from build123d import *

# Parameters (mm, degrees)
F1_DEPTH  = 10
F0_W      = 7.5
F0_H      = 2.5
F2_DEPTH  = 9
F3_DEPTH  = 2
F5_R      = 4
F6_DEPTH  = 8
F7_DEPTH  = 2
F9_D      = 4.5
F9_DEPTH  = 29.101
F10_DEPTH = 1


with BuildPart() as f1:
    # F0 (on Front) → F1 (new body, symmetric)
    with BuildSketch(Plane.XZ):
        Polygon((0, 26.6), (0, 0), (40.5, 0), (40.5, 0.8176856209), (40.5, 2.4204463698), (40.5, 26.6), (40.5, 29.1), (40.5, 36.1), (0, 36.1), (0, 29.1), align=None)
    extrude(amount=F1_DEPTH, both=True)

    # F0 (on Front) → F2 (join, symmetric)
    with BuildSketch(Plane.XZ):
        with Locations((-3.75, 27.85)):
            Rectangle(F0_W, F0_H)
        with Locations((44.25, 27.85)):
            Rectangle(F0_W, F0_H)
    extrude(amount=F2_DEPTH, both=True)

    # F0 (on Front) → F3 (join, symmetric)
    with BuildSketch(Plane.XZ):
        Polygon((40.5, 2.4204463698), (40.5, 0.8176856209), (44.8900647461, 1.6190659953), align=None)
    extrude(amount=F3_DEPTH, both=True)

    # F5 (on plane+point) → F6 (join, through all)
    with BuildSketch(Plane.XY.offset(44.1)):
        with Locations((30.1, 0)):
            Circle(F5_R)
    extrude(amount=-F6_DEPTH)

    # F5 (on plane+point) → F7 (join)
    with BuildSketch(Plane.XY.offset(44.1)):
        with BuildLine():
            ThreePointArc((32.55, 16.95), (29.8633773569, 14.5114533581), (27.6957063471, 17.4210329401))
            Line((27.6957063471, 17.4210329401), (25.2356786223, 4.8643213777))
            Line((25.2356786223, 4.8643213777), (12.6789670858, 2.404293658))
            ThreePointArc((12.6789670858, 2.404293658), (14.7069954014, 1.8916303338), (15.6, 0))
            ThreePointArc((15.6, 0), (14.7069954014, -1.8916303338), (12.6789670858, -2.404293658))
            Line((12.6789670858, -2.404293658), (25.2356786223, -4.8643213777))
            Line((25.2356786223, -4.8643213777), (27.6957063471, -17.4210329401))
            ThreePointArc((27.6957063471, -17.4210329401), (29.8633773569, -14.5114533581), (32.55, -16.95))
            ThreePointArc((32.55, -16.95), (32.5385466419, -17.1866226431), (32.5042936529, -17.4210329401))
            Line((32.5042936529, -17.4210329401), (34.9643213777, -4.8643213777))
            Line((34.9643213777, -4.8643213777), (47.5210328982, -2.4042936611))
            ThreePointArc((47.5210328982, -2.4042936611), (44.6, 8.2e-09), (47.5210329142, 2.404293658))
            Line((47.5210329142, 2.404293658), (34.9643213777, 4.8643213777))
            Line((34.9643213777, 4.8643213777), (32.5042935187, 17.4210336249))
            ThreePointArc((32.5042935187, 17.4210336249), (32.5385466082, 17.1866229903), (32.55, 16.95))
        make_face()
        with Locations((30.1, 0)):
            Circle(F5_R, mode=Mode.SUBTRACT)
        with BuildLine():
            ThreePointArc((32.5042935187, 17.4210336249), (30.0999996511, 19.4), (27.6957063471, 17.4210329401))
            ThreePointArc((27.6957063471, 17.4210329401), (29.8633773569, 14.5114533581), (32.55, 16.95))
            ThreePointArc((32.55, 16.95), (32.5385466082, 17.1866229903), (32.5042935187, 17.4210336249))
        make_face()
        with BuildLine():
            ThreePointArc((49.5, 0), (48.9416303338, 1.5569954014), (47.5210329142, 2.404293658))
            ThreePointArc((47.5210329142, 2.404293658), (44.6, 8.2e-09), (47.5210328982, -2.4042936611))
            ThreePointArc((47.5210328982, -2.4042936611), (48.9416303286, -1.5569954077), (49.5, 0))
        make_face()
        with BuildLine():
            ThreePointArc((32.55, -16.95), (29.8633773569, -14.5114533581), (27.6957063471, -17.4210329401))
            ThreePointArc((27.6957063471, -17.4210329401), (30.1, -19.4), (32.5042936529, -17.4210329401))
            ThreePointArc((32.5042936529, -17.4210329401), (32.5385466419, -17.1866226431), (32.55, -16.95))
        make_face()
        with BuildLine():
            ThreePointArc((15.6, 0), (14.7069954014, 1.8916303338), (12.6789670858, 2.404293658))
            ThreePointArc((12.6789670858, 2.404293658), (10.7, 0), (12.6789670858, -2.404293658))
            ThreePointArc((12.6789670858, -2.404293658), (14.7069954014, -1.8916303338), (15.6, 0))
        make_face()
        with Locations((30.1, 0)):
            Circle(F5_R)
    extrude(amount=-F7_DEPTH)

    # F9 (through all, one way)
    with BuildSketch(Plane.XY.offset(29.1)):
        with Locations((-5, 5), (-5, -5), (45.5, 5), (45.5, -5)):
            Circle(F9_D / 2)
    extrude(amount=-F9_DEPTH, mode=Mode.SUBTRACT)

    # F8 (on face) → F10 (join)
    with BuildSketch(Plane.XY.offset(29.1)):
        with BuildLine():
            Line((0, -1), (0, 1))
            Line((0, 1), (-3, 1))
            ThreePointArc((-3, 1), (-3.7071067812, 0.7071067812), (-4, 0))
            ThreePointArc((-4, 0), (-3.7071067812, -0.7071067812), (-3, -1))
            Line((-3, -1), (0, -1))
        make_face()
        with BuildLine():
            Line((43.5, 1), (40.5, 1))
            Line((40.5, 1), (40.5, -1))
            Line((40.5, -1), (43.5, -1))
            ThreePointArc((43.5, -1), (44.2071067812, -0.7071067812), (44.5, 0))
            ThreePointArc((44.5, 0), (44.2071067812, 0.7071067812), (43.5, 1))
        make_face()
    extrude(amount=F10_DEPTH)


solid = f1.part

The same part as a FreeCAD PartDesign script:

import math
import FreeCAD as App
import Part
import Sketcher
from FreeCAD import Vector
Q = App.Units.Quantity


def add_polygon(sketch, points):
    """Adds a closed chain of lines whose ends are joined by coincident constraints."""
    first, n = sketch.GeometryCount, len(points)
    for a, b in zip(points, points[1:] + points[:1]):
        sketch.addGeometry(Part.LineSegment(App.Vector(*a, 0), App.Vector(*b, 0)), False)
    for i in range(n):
        sketch.addConstraint(Sketcher.Constraint("Coincident", first + i, 2, first + (i + 1) % n, 1))

doc = App.newDocument("Part")
body = doc.addObject("PartDesign::Body", "Body")

# Sketch on XZ plane
sketch1 = body.newObject("Sketcher::SketchObject", "Sketch")
sketch1.AttachmentSupport = (doc.getObject("XZ_Plane"), [""])
sketch1.MapMode = "FlatFace"
add_polygon(sketch1, [(0, 0), (40, 0), (40, 36), (0, 36)])  # lines 0-3
sketch1.addConstraint([
    Sketcher.Constraint("Horizontal", 0),
    Sketcher.Constraint("Vertical", 1),
    Sketcher.Constraint("Horizontal", 2),
    Sketcher.Constraint("Vertical", 3),
    Sketcher.Constraint("Coincident", 3, 2, -1, 1),
    Sketcher.Constraint("DistanceX", 0, 1, 0, 2, Q("40.5 mm")),
    Sketcher.Constraint("DistanceY", 1, 1, 1, 2, Q("36.1 mm")),
])
pad1 = body.newObject("PartDesign::Pad", "Pad")
pad1.Profile = sketch1
pad1.Length = 20
pad1.Midplane = True

# Sketch on XZ plane
sketch2 = body.newObject("Sketcher::SketchObject", "Sketch001")
sketch2.AttachmentSupport = (doc.getObject("XZ_Plane"), [""])
sketch2.MapMode = "FlatFace"
add_polygon(sketch2, [(-7.5, 29.1), (-7.5, 26.6), (0, 26.6), (0, 29.1)])  # lines 0-3
add_polygon(sketch2, [(40.5, 29.1), (40.5, 26.6), (48, 26.6), (48, 29.1)])  # lines 4-7
sketch2.addConstraint([
    Sketcher.Constraint("Vertical", 0),
    Sketcher.Constraint("Horizontal", 1),
    Sketcher.Constraint("Vertical", 2),
    Sketcher.Constraint("Horizontal", 3),
    Sketcher.Constraint("Vertical", 4),
    Sketcher.Constraint("Horizontal", 5),
    Sketcher.Constraint("Vertical", 6),
    Sketcher.Constraint("Horizontal", 7),
    Sketcher.Constraint("PointOnObject", 1, 2, -2),
    Sketcher.Constraint("Horizontal", 1, 2, 4, 2),
    Sketcher.Constraint("Horizontal", 3, 2, 6, 2),
    Sketcher.Constraint("Equal", 3, 5),
    Sketcher.Constraint("DistanceX", 1, 1, 1, 2, Q("7.5 mm")),
    Sketcher.Constraint("DistanceY", 0, 2, 0, 1, Q("2.5 mm")),
    Sketcher.Constraint("DistanceX", -1, 1, 5, 2, Q("48 mm")),
    Sketcher.Constraint("DistanceY", -1, 1, 0, 2, Q("26.6 mm")),
])
pad2 = body.newObject("PartDesign::Pad", "Pad001")
pad2.Profile = sketch2
pad2.Length = 18
pad2.Midplane = True

# Sketch on XZ plane
sketch3 = body.newObject("Sketcher::SketchObject", "Sketch002")
sketch3.AttachmentSupport = (doc.getObject("XZ_Plane"), [""])
sketch3.MapMode = "FlatFace"
add_polygon(sketch3, [(40.5, 2.4), (40.5, 0.8), (44.9, 1.6)])  # lines 0-2
sketch3.addConstraint([
    Sketcher.Constraint("Vertical", 0),
    Sketcher.Constraint("Equal", 1, 2),
    Sketcher.Constraint("DistanceX", -1, 1, 0, 2, Q("40.5 mm")),
    Sketcher.Constraint("DistanceY", 0, 2, 0, 1, Q("1.602761 mm")),
    Sketcher.Constraint("Distance", 1, Q("4.462609 mm")),
    Sketcher.Constraint("DistanceY", -1, 1, 0, 2, Q("0.817686 mm")),
])
pad3 = body.newObject("PartDesign::Pad", "Pad002")
pad3.Profile = sketch3
pad3.Length = 4
pad3.Midplane = True

# Sketch on XY plane
sketch4 = body.newObject("Sketcher::SketchObject", "Sketch003")
sketch4.AttachmentSupport = (doc.getObject("XY_Plane"), [""])
sketch4.MapMode = "FlatFace"
sketch4.AttachmentOffset = App.Placement(Vector(0, 0, 44.1), App.Rotation())
sketch4.addGeometry(Part.Circle(Vector(30.1, 0, 0), Vector(0, 0, 1), 4), False)
sketch4.addConstraint([
    Sketcher.Constraint("PointOnObject", 0, 3, -1),
    Sketcher.Constraint("Diameter", 0, Q("8 mm")),
    Sketcher.Constraint("DistanceX", -1, 1, 0, 3, Q("30.1 mm")),
])
pad4 = body.newObject("PartDesign::Pad", "Pad003")
pad4.Profile = sketch4
pad4.Type = "UpToLast"
pad4.Reversed = True

# Sketch on XY plane
sketch5 = body.newObject("Sketcher::SketchObject", "Sketch004")
sketch5.AttachmentSupport = (doc.getObject("XY_Plane"), [""])
sketch5.MapMode = "FlatFace"
sketch5.AttachmentOffset = App.Placement(Vector(0, 0, 44.1), App.Rotation())
sketch5.addGeometry([
    Part.LineSegment(Vector(27.7, 17.4, 0), Vector(25.2, 4.9, 0)),  # 0
    Part.LineSegment(Vector(25.2, 4.9, 0), Vector(12.7, 2.4, 0)),  # 1
    Part.ArcOfCircle(Part.Circle(Vector(13.2, 0, 0), Vector(0, 0, 1), 2.5), math.radians(101), math.radians(259)),  # 2
    Part.LineSegment(Vector(12.7, -2.4, 0), Vector(25.2, -4.9, 0)),  # 3
    Part.LineSegment(Vector(25.2, -4.9, 0), Vector(27.7, -17.4, 0)),  # 4
    Part.ArcOfCircle(Part.Circle(Vector(30.1, -16.9, 0), Vector(0, 0, 1), 2.5), math.radians(-169), math.radians(-11)),  # 5
    Part.LineSegment(Vector(32.5, -17.4, 0), Vector(35, -4.9, 0)),  # 6
    Part.LineSegment(Vector(35, -4.9, 0), Vector(47.5, -2.4, 0)),  # 7
    Part.ArcOfCircle(Part.Circle(Vector(47, 0, 0), Vector(0, 0, 1), 2.5), math.radians(-79), math.radians(0)),  # 8
    Part.ArcOfCircle(Part.Circle(Vector(47, 0, 0), Vector(0, 0, 1), 2.5), math.radians(0), math.radians(79)),  # 9
    Part.LineSegment(Vector(47.5, 2.4, 0), Vector(35, 4.9, 0)),  # 10
    Part.LineSegment(Vector(35, 4.9, 0), Vector(32.5, 17.4, 0)),  # 11
    Part.ArcOfCircle(Part.Circle(Vector(30.1, 16.9, 0), Vector(0, 0, 1), 2.5), math.radians(11), math.radians(169)),  # 12
], False)
sketch5.addConstraint([
    Sketcher.Constraint("Coincident", 0, 2, 1, 1),
    Sketcher.Constraint("Tangent", 1, 2, 2, 1),
    Sketcher.Constraint("Tangent", 2, 2, 3, 1),
    Sketcher.Constraint("Coincident", 3, 2, 4, 1),
    Sketcher.Constraint("Tangent", 4, 2, 5, 1),
    Sketcher.Constraint("Tangent", 5, 2, 6, 1),
    Sketcher.Constraint("Coincident", 6, 2, 7, 1),
    Sketcher.Constraint("Tangent", 7, 2, 8, 1),
    Sketcher.Constraint("Tangent", 8, 2, 9, 1),
    Sketcher.Constraint("Tangent", 9, 2, 10, 1),
    Sketcher.Constraint("Coincident", 10, 2, 11, 1),
    Sketcher.Constraint("Tangent", 11, 2, 12, 1),
    Sketcher.Constraint("Tangent", 12, 2, 0, 1),
    Sketcher.Constraint("Equal", 2, 5),
    Sketcher.Constraint("Equal", 5, 8),
    Sketcher.Constraint("Equal", 8, 9),
    Sketcher.Constraint("Equal", 9, 12),
    Sketcher.Constraint("Symmetric", 5, 3, 12, 3, -1),
    Sketcher.Constraint("Symmetric", 1, 2, 2, 2, -1),
    Sketcher.Constraint("Symmetric", 7, 2, 9, 2, -1),
    Sketcher.Constraint("PointOnObject", 8, 2, -1),
    Sketcher.Constraint("Perpendicular", 0, 3),
    Sketcher.Constraint("Perpendicular", 1, 4),
    Sketcher.Constraint("Perpendicular", 3, 6),
    Sketcher.Constraint("Perpendicular", 4, 7),
    Sketcher.Constraint("Perpendicular", 7, 11),
    Sketcher.Constraint("Horizontal", 3, 2, 6, 2),
    Sketcher.Constraint("Equal", 0, 1),
    Sketcher.Constraint("Radius", 2, Q("2.45 mm")),
    Sketcher.Constraint("DistanceX", -1, 1, 5, 3, Q("30.1 mm")),
    Sketcher.Constraint("DistanceX", -1, 1, 8, 2, Q("49.5 mm")),
    Sketcher.Constraint("Distance", 0, Q("12.795419 mm")),
])
pad5 = body.newObject("PartDesign::Pad", "Pad004")
pad5.Profile = sketch5
pad5.Length = 2
pad5.Reversed = True

# Sketch on XY plane
sketch6 = body.newObject("Sketcher::SketchObject", "Sketch005")
sketch6.AttachmentSupport = (doc.getObject("XY_Plane"), [""])
sketch6.MapMode = "FlatFace"
sketch6.AttachmentOffset = App.Placement(Vector(0, 0, 29.1), App.Rotation())
sketch6.addGeometry([
    Part.Circle(Vector(45.5, -5, 0), Vector(0, 0, 1), 2.2),
    Part.Circle(Vector(-5, 5, 0), Vector(0, 0, 1), 2.2),
    Part.Circle(Vector(-5, -5, 0), Vector(0, 0, 1), 2.2),
    Part.Circle(Vector(45.5, 5, 0), Vector(0, 0, 1), 2.2),
], False)
sketch6.addConstraint([
    Sketcher.Constraint("Equal", 0, 1),
    Sketcher.Constraint("Equal", 1, 2),
    Sketcher.Constraint("Equal", 2, 3),
    Sketcher.Constraint("Symmetric", 1, 3, 2, 3, -1),
    Sketcher.Constraint("Symmetric", 0, 3, 3, 3, -1),
    Sketcher.Constraint("Horizontal", 0, 3, 2, 3),
    Sketcher.Constraint("Diameter", 0, Q("4.5 mm")),
    Sketcher.Constraint("DistanceY", 0, 3, -1, 1, Q("5 mm")),
    Sketcher.Constraint("DistanceX", 1, 3, -1, 1, Q("5 mm")),
    Sketcher.Constraint("DistanceX", -1, 1, 0, 3, Q("45.5 mm")),
])
pocket1 = body.newObject("PartDesign::Pocket", "Pocket")
pocket1.Profile = sketch6
pocket1.Type = "ThroughAll"

# Sketch on XY plane
sketch7 = body.newObject("Sketcher::SketchObject", "Sketch006")
sketch7.AttachmentSupport = (doc.getObject("XY_Plane"), [""])
sketch7.MapMode = "FlatFace"
sketch7.AttachmentOffset = App.Placement(Vector(0, 0, 29.1), App.Rotation())
sketch7.addGeometry([
    Part.LineSegment(Vector(0, -1, 0), Vector(0, 1, 0)),  # 0
    Part.LineSegment(Vector(0, 1, 0), Vector(-3, 1, 0)),  # 1
    Part.ArcOfCircle(Part.Circle(Vector(-3, 0, 0), Vector(0, 0, 1), 1), math.radians(90), math.radians(180)),  # 2
    Part.ArcOfCircle(Part.Circle(Vector(-3, 0, 0), Vector(0, 0, 1), 1), math.radians(180), math.radians(270)),  # 3
    Part.LineSegment(Vector(-3, -1, 0), Vector(0, -1, 0)),  # 4
    Part.LineSegment(Vector(43.5, 1, 0), Vector(40.5, 1, 0)),  # 5
    Part.LineSegment(Vector(40.5, 1, 0), Vector(40.5, -1, 0)),  # 6
    Part.LineSegment(Vector(40.5, -1, 0), Vector(43.5, -1, 0)),  # 7
    Part.ArcOfCircle(Part.Circle(Vector(43.5, 0, 0), Vector(0, 0, 1), 1), math.radians(-90), math.radians(0)),  # 8
    Part.ArcOfCircle(Part.Circle(Vector(43.5, 0, 0), Vector(0, 0, 1), 1), math.radians(0), math.radians(90)),  # 9
], False)
sketch7.addConstraint([
    Sketcher.Constraint("Coincident", 0, 2, 1, 1),
    Sketcher.Constraint("Tangent", 1, 2, 2, 1),
    Sketcher.Constraint("Tangent", 2, 2, 3, 1),
    Sketcher.Constraint("Tangent", 3, 2, 4, 1),
    Sketcher.Constraint("Coincident", 4, 2, 0, 1),
    Sketcher.Constraint("Coincident", 5, 2, 6, 1),
    Sketcher.Constraint("Coincident", 6, 2, 7, 1),
    Sketcher.Constraint("Tangent", 7, 2, 8, 1),
    Sketcher.Constraint("Tangent", 8, 2, 9, 1),
    Sketcher.Constraint("Tangent", 9, 2, 5, 1),
    Sketcher.Constraint("Vertical", 0),
    Sketcher.Constraint("Horizontal", 1),
    Sketcher.Constraint("Horizontal", 4),
    Sketcher.Constraint("Horizontal", 5),
    Sketcher.Constraint("Vertical", 6),
    Sketcher.Constraint("Horizontal", 7),
    Sketcher.Constraint("Equal", 2, 3),
    Sketcher.Constraint("Equal", 3, 8),
    Sketcher.Constraint("Equal", 8, 9),
    Sketcher.Constraint("Symmetric", 0, 2, 4, 2, -1, 1),
    Sketcher.Constraint("PointOnObject", 8, 3, -1),
    Sketcher.Constraint("PointOnObject", 2, 2, -1),
    Sketcher.Constraint("PointOnObject", 8, 2, -1),
    Sketcher.Constraint("Equal", 4, 5),
    Sketcher.Constraint("Radius", 2, Q("1 mm")),
    Sketcher.Constraint("DistanceX", 1, 2, 1, 1, Q("3 mm")),
    Sketcher.Constraint("DistanceX", -1, 1, 8, 3, Q("43.5 mm")),
])
pad6 = body.newObject("PartDesign::Pad", "Pad005")
pad6.Profile = sketch7
pad6.Length = 1

doc.recompute()
